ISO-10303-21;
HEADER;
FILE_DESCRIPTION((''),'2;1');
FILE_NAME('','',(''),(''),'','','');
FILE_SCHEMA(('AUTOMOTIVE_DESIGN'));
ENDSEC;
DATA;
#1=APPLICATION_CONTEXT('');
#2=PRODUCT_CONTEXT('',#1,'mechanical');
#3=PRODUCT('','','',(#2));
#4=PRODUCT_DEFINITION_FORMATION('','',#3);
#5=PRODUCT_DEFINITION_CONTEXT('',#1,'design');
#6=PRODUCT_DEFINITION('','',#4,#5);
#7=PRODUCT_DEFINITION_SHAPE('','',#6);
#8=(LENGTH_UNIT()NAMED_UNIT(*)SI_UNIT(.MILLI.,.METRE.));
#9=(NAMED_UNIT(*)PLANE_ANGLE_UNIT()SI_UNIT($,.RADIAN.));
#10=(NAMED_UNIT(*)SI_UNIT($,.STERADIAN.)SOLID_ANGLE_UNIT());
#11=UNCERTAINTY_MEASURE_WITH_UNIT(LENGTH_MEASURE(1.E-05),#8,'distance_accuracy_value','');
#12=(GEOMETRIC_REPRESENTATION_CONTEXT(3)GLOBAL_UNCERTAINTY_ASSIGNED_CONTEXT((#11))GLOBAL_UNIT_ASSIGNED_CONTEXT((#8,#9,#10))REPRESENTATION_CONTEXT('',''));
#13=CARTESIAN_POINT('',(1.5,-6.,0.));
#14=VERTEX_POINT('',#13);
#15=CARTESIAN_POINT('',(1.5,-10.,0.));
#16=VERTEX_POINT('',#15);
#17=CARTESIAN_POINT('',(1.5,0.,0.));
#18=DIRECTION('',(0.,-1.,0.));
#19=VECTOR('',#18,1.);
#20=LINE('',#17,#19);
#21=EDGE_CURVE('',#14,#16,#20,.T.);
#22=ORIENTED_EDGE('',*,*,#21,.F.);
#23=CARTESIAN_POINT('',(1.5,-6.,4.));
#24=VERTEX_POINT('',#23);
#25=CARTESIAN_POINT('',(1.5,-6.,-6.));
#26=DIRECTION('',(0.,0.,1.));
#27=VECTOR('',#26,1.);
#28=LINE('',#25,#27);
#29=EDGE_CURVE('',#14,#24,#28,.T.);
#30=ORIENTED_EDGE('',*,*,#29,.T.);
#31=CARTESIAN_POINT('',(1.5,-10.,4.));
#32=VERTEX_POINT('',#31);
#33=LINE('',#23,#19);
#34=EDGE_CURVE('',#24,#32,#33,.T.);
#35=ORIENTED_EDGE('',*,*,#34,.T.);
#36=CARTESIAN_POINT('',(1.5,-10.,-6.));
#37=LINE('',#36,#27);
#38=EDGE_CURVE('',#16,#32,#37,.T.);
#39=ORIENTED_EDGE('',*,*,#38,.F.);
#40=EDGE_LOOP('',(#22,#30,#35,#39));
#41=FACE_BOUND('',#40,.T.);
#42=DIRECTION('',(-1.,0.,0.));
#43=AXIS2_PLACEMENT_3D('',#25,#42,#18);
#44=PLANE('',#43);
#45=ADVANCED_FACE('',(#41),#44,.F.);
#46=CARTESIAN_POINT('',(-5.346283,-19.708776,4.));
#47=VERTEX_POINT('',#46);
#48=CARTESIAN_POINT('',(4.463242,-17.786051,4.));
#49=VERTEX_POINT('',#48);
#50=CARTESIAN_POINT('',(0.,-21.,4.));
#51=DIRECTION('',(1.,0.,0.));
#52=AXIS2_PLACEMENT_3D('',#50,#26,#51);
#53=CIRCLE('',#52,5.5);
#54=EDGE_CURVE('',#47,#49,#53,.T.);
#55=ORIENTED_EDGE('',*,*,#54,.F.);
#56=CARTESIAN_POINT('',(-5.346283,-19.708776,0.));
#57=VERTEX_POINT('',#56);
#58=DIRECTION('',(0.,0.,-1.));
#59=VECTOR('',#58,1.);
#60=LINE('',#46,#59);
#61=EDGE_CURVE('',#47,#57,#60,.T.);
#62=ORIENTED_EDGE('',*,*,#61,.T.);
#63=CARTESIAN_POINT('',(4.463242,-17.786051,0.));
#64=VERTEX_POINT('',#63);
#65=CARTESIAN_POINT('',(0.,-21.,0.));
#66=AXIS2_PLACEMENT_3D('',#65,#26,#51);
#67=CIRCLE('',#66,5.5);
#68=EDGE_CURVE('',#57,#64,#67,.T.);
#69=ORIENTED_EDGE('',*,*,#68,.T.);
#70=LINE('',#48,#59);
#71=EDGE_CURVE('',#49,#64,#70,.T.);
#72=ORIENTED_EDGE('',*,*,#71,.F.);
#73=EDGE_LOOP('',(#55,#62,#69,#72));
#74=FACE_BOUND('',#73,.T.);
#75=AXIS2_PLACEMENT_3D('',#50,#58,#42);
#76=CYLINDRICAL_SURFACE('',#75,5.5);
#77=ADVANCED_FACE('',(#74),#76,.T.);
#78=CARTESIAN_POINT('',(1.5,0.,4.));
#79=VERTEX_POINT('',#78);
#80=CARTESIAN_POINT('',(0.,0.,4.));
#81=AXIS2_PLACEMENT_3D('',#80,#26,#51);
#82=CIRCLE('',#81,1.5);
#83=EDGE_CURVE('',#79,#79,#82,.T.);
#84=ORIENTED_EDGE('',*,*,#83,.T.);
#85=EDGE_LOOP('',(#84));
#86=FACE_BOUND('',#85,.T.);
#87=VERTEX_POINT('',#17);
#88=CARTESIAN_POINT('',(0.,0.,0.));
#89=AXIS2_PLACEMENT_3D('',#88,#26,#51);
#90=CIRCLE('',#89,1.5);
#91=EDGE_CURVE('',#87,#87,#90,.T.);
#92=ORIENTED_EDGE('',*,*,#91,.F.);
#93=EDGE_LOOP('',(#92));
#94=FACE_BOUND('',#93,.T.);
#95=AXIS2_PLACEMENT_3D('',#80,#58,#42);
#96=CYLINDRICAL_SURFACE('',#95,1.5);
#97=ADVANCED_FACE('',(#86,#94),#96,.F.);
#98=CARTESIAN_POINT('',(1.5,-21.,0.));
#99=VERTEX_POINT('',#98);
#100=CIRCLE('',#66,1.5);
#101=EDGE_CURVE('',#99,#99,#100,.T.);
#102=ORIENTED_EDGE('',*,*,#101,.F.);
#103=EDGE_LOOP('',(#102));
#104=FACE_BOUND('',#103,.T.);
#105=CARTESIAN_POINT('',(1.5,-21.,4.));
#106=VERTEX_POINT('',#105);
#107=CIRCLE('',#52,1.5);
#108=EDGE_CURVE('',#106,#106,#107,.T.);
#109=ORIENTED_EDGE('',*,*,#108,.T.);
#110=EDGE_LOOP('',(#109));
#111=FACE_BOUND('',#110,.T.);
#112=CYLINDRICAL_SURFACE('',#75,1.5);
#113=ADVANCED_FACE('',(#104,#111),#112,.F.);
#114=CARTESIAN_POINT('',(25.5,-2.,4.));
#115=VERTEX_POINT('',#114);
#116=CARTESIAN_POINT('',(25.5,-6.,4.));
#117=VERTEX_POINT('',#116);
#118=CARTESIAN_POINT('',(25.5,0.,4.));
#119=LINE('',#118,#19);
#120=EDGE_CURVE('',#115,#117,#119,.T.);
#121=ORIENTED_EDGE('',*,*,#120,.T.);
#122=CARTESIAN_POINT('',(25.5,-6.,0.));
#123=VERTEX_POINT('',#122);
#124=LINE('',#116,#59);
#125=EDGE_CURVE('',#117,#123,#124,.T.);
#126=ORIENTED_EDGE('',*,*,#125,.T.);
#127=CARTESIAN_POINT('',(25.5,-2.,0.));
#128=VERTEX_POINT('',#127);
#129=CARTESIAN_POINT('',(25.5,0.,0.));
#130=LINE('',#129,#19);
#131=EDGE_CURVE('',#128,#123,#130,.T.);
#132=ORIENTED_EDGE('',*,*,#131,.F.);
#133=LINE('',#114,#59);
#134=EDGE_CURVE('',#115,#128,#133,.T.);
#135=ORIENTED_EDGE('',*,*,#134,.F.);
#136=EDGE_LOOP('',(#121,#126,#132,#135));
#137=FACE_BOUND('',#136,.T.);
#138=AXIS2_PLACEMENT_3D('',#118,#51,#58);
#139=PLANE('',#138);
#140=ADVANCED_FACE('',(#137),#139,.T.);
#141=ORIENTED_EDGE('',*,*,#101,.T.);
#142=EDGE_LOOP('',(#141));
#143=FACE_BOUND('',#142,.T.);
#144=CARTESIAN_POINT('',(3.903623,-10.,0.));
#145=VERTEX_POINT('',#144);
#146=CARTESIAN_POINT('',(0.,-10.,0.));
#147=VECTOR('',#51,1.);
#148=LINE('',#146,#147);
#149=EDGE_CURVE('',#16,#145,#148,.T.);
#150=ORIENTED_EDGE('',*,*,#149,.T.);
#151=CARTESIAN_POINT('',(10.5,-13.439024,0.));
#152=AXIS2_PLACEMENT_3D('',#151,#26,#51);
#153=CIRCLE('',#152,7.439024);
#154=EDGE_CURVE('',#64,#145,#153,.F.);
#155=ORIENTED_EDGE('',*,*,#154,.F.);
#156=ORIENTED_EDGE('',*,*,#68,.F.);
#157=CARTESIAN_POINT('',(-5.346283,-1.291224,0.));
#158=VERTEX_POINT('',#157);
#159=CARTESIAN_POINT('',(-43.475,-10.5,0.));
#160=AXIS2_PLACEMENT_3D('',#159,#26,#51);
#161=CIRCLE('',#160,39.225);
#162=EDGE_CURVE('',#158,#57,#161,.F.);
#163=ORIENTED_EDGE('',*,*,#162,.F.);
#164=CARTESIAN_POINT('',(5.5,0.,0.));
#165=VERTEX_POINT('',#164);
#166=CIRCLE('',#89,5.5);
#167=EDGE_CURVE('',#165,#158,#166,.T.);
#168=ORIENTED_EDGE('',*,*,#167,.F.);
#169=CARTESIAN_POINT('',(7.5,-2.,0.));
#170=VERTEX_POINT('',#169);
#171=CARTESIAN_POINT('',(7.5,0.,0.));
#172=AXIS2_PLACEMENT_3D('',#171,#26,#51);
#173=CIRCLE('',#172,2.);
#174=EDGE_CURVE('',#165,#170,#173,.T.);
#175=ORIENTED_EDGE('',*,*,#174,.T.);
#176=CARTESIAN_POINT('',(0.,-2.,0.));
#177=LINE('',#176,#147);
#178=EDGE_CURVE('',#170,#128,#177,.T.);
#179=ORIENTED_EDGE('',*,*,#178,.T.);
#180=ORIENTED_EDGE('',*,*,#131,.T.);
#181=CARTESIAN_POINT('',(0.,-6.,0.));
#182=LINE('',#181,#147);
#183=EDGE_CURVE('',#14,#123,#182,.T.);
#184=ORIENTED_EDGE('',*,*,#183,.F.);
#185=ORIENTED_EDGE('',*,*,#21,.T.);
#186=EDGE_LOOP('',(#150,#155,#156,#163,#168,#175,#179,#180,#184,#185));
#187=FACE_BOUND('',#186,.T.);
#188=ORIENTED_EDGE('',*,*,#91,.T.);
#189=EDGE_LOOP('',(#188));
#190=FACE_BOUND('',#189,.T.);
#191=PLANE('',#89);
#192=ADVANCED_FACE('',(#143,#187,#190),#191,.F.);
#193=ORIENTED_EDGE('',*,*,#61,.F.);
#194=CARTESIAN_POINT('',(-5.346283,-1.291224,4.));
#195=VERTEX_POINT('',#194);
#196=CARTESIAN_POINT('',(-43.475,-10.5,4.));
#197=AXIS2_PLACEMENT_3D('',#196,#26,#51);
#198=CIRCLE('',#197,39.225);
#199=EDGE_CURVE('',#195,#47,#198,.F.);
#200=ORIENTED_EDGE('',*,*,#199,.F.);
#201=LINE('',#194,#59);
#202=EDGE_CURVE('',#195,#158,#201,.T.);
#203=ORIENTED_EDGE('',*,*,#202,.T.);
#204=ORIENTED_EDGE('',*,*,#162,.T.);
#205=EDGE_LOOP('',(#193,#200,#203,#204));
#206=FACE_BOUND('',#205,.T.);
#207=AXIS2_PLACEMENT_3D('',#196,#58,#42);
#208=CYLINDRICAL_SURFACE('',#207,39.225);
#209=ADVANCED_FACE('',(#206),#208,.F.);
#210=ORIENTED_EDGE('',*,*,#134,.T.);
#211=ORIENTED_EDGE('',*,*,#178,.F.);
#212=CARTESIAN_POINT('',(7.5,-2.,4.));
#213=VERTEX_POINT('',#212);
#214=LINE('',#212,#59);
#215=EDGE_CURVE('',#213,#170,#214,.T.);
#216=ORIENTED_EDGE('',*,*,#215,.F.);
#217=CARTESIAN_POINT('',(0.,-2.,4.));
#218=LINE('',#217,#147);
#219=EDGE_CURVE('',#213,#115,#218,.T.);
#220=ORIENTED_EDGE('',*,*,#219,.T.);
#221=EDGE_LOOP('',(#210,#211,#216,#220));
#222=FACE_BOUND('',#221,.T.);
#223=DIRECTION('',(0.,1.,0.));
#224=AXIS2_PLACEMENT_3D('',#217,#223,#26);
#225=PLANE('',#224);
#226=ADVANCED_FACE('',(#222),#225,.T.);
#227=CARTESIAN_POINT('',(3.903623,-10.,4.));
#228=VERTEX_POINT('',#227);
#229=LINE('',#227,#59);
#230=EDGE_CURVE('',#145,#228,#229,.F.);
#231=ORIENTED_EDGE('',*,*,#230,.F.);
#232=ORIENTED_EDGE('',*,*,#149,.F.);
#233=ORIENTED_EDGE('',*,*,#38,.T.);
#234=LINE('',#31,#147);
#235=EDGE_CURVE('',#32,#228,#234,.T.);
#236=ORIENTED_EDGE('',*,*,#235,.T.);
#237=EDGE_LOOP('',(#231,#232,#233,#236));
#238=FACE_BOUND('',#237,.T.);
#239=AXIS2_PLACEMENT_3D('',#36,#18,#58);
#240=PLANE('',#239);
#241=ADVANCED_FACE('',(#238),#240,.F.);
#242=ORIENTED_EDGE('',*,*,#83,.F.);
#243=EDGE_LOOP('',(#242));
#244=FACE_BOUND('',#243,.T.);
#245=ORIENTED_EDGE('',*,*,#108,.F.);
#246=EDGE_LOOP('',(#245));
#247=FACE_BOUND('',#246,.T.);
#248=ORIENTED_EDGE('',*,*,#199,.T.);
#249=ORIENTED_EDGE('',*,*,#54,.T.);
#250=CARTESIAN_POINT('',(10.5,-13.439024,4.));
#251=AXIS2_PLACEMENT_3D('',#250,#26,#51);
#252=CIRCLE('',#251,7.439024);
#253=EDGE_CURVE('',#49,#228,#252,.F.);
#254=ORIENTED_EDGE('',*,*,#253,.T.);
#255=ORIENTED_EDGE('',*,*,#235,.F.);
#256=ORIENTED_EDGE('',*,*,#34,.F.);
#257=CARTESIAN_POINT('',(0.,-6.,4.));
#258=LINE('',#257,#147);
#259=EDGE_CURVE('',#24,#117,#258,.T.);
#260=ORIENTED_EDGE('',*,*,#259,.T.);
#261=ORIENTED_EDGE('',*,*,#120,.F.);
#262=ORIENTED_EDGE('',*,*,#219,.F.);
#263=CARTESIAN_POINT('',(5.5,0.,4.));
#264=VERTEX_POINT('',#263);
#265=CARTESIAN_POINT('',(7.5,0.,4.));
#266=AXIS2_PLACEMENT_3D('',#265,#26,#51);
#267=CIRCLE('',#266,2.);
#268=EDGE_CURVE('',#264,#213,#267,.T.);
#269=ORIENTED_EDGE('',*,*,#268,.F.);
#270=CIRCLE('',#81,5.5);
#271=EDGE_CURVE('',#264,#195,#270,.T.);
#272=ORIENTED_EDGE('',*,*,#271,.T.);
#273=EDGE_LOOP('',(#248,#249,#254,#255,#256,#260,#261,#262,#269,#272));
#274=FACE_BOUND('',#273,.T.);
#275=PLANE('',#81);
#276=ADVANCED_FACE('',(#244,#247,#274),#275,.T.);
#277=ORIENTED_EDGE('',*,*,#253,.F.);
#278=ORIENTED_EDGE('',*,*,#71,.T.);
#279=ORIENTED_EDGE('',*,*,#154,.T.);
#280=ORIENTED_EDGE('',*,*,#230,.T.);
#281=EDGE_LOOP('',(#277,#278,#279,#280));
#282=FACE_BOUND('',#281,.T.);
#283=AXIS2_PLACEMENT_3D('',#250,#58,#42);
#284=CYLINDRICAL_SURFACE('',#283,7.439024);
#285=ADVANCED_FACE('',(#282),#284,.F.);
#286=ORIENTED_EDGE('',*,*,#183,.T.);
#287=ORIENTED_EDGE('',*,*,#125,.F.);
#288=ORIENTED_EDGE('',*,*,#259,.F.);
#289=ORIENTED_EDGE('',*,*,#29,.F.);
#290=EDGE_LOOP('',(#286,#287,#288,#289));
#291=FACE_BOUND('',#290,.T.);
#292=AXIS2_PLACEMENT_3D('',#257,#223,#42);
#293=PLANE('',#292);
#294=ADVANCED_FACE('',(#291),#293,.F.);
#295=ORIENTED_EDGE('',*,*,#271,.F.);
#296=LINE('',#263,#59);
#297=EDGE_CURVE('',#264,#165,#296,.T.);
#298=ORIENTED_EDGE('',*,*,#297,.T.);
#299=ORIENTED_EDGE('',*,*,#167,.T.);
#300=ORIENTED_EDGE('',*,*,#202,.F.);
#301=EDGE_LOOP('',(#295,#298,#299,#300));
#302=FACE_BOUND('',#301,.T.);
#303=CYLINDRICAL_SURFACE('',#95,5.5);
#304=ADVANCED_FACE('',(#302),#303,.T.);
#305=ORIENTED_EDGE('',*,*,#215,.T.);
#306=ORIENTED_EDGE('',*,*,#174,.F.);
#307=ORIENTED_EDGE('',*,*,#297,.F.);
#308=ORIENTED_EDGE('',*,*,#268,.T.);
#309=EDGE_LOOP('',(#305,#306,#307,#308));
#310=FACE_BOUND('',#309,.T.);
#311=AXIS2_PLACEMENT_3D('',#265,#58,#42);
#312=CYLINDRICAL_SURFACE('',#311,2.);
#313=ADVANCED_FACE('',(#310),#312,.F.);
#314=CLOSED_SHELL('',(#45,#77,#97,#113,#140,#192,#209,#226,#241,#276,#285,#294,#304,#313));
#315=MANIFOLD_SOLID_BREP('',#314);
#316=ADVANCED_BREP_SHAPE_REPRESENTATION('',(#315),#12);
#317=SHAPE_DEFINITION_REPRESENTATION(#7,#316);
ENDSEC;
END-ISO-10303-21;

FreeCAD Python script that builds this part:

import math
import FreeCAD as App
import Part
import Sketcher
Q = App.Units.Quantity


def add_polygon(sketch, points):
    """Adds a closed chain of lines whose ends are joined by coincident constraints."""
    first, n = sketch.GeometryCount, len(points)
    for a, b in zip(points, points[1:] + points[:1]):
        sketch.addGeometry(Part.LineSegment(App.Vector(*a, 0), App.Vector(*b, 0)), False)
    for i in range(n):
        sketch.addConstraint(Sketcher.Constraint("Coincident", first + i, 2, first + (i + 1) % n, 1))

doc = App.newDocument("Part")
body = doc.addObject("PartDesign::Body", "Body")

# Sketch on XY plane
sketch1 = doc.addObject("Sketcher::SketchObject", "Sketch")
body.addObject(sketch1)
sketch1.AttachmentSupport = (doc.XY_Plane, [""])
sketch1.MapMode = "FlatFace"
sketch1.addGeometry([
    Part.LineSegment(App.Vector(25.5, -2, 0), App.Vector(7.5, -2, 0)),  # 0
    Part.ArcOfCircle(Part.Circle(App.Vector(7.5, 0, 0), App.Vector(0, 0, 1), 2), math.radians(-180), math.radians(-90)),  # 1
    Part.ArcOfCircle(Part.Circle(App.Vector(0, 0, 0), App.Vector(0, 0, 1), 5.5), math.radians(0), math.radians(194)),  # 2
    Part.ArcOfCircle(Part.Circle(App.Vector(-43.5, -10.5, 0), App.Vector(0, 0, 1), 39.2), math.radians(-14), math.radians(14)),  # 3
    Part.ArcOfCircle(Part.Circle(App.Vector(0, -21, 0), App.Vector(0, 0, 1), 5.5), math.radians(166), math.radians(396)),  # 4
    Part.ArcOfCircle(Part.Circle(App.Vector(10.5, -13.4, 0), App.Vector(0, 0, 1), 7.4), math.radians(90), math.radians(216)),  # 5
    Part.LineSegment(App.Vector(10.5, -6, 0), App.Vector(25.5, -6, 0)),  # 6
    Part.LineSegment(App.Vector(25.5, -6, 0), App.Vector(25.5, -2, 0)),  # 7
    Part.Circle(App.Vector(0, -21, 0), App.Vector(0, 0, 1), 1.5),  # 8
    Part.Circle(App.Vector(0, 0, 0), App.Vector(0, 0, 1), 1.5),  # 9
], False)
sketch1.addConstraint([
    Sketcher.Constraint("Tangent", 0, 2, 1, 2),
    Sketcher.Constraint("Tangent", 1, 1, 2, 1),
    Sketcher.Constraint("Tangent", 2, 2, 3, 2),
    Sketcher.Constraint("Tangent", 3, 1, 4, 1),
    Sketcher.Constraint("Tangent", 4, 2, 5, 2),
    Sketcher.Constraint("Tangent", 5, 1, 6, 1),
    Sketcher.Constraint("Coincident", 6, 2, 7, 1),
    Sketcher.Constraint("Coincident", 7, 2, 0, 1),
    Sketcher.Constraint("Horizontal", 0),
    Sketcher.Constraint("Horizontal", 6),
    Sketcher.Constraint("Vertical", 7),
    Sketcher.Constraint("Coincident", 2, 3, -1, 1),
    Sketcher.Constraint("Coincident", 9, 3, -1, 1),
    Sketcher.Constraint("Coincident", 8, 3, 4, 3),
    Sketcher.Constraint("Equal", 2, 4),
    Sketcher.Constraint("Equal", 8, 9),
    Sketcher.Constraint("PointOnObject", 1, 3, -1),
    Sketcher.Constraint("PointOnObject", 4, 3, -2),
    Sketcher.Constraint("Diameter", 8, Q("3 mm")),
    Sketcher.Constraint("Radius", 1, Q("2 mm")),
    Sketcher.Constraint("Radius", 2, Q("5.5 mm")),
    Sketcher.Constraint("DistanceX", 0, 2, 0, 1, Q("18 mm")),
    Sketcher.Constraint("DistanceX", 6, 1, 6, 2, Q("15 mm")),
    Sketcher.Constraint("DistanceY", 7, 1, 7, 2, Q("4 mm")),
    Sketcher.Constraint("DistanceY", 4, 3, -1, 1, Q("21 mm")),
    Sketcher.Constraint("Radius", 3, Q("39.225 mm")),
])
pad1 = doc.addObject("PartDesign::Pad", "Pad")
body.addObject(pad1)
pad1.Profile = sketch1
pad1.Length = 4

# Sketch on XY plane
sketch2 = doc.addObject("Sketcher::SketchObject", "Sketch001")
body.addObject(sketch2)
sketch2.AttachmentSupport = (doc.XY_Plane, [""])
sketch2.MapMode = "FlatFace"
sketch2.AttachmentOffset = App.Placement(App.Vector(0, 0, 4), App.Rotation())
add_polygon(sketch2, [(1.5, -6), (1.5, -10), (25.5, -10), (25.5, -6)])  # lines 0-3
sketch2.addConstraint([
    Sketcher.Constraint("Vertical", 0),
    Sketcher.Constraint("Horizontal", 1),
    Sketcher.Constraint("Vertical", 2),
    Sketcher.Constraint("Horizontal", 3),
    Sketcher.Constraint("DistanceX", 1, 1, 1, 2, Q("24 mm")),
    Sketcher.Constraint("DistanceY", 0, 2, 0, 1, Q("4 mm")),
    Sketcher.Constraint("DistanceY", 0, 2, -1, 1, Q("10 mm")),
    Sketcher.Constraint("DistanceX", -1, 1, 0, 2, Q("1.5 mm")),
])
pocket1 = doc.addObject("PartDesign::Pocket", "Pocket")
body.addObject(pocket1)
pocket1.Profile = sketch2
pocket1.Length = 10

doc.recompute()
